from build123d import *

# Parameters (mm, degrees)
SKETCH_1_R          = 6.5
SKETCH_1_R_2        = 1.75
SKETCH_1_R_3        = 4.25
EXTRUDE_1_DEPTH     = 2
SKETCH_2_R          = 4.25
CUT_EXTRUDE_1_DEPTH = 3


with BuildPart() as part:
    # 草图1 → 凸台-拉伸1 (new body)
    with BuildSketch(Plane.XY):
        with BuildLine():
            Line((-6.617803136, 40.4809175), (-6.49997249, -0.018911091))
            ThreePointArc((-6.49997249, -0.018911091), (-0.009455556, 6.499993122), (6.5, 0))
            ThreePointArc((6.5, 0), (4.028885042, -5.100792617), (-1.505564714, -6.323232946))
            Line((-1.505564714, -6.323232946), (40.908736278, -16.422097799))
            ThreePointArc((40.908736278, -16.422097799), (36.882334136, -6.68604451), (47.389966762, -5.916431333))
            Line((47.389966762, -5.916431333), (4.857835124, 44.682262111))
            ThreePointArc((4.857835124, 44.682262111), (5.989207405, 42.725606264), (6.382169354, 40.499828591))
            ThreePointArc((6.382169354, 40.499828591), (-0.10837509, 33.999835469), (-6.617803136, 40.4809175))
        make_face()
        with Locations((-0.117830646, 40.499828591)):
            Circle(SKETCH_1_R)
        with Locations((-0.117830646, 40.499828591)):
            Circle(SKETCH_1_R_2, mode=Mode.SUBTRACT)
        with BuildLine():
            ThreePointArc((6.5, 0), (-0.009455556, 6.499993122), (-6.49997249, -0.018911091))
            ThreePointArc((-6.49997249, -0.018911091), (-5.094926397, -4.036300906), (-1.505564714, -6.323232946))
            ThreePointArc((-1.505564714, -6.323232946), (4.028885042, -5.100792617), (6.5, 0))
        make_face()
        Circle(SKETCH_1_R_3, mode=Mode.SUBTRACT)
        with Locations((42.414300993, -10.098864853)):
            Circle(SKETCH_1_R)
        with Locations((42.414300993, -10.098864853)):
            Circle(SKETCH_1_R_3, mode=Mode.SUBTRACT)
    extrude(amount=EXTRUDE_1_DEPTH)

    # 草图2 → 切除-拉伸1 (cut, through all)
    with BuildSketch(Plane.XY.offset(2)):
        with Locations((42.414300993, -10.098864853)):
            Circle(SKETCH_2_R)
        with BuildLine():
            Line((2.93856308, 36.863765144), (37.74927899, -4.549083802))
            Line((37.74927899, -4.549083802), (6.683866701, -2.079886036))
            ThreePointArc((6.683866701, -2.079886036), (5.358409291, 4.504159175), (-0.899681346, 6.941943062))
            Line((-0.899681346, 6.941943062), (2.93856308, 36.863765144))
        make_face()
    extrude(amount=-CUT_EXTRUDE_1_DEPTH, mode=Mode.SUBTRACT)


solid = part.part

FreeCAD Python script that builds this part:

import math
import FreeCAD as App
import Part
import Sketcher
Q = App.Units.Quantity

doc = App.newDocument("Part")
body = doc.addObject("PartDesign::Body", "Body")

# Sketch on XY plane
sketch1 = body.newObject("Sketcher::SketchObject", "Sketch")
sketch1.AttachmentSupport = (doc.getObject("XY_Plane"), [""])
sketch1.MapMode = "FlatFace"
sketch1.addGeometry([
    Part.ArcOfCircle(Part.Circle(App.Vector(-0.1, 40.5, 0), App.Vector(0, 0, 1), 6.5), math.radians(40), math.radians(180)),  # 0
    Part.LineSegment(App.Vector(-6.6, 40.5, 0), App.Vector(-6.5, 0, 0)),  # 1
    Part.ArcOfCircle(Part.Circle(App.Vector(0, 0, 0), App.Vector(0, 0, 1), 6.5), math.radians(-180), math.radians(-103)),  # 2
    Part.LineSegment(App.Vector(-1.5, -6.3, 0), App.Vector(40.9, -16.4, 0)),  # 3
    Part.ArcOfCircle(Part.Circle(App.Vector(42.4, -10.1, 0), App.Vector(0, 0, 1), 6.5), math.radians(-103), math.radians(40)),  # 4
    Part.LineSegment(App.Vector(47.4, -5.9, 0), App.Vector(4.9, 44.7, 0)),  # 5
    Part.Circle(App.Vector(0, 0, 0), App.Vector(0, 0, 1), 4.2),  # 6
    Part.Circle(App.Vector(42.4, -10.1, 0), App.Vector(0, 0, 1), 4.2),  # 7
    Part.Circle(App.Vector(-0.1, 40.5, 0), App.Vector(0, 0, 1), 1.8),  # 8
], False)
sketch1.addConstraint([
    Sketcher.Constraint("Tangent", 0, 2, 1, 1),
    Sketcher.Constraint("Tangent", 1, 2, 2, 1),
    Sketcher.Constraint("Tangent", 2, 2, 3, 1),
    Sketcher.Constraint("Tangent", 3, 2, 4, 1),
    Sketcher.Constraint("Tangent", 4, 2, 5, 1),
    Sketcher.Constraint("Tangent", 5, 2, 0, 1),
    Sketcher.Constraint("Coincident", 2, 3, -1, 1),
    Sketcher.Constraint("Coincident", 6, 3, -1, 1),
    Sketcher.Constraint("Coincident", 7, 3, 4, 3),
    Sketcher.Constraint("Coincident", 8, 3, 0, 3),
    Sketcher.Constraint("Equal", 0, 2),
    Sketcher.Constraint("Equal", 2, 4),
    Sketcher.Constraint("Equal", 6, 7),
    Sketcher.Constraint("Diameter", 6, Q("8.5 mm")),
    Sketcher.Constraint("Diameter", 8, Q("3.5 mm")),
    Sketcher.Constraint("Radius", 0, Q("6.5 mm")),
    Sketcher.Constraint("Distance", 1, Q("40.5 mm")),
    Sketcher.Constraint("Distance", 3, Q("43.6 mm")),
    Sketcher.Constraint("Distance", 5, Q("66.1 mm")),
    Sketcher.Constraint("DistanceX", -1, 1, 4, 3, Q("42.414301 mm")),
])
pad1 = body.newObject("PartDesign::Pad", "Pad")
pad1.Profile = sketch1
pad1.Length = 2

# Sketch on XY plane
sketch2 = body.newObject("Sketcher::SketchObject", "Sketch001")
sketch2.AttachmentSupport = (doc.getObject("XY_Plane"), [""])
sketch2.MapMode = "FlatFace"
sketch2.AttachmentOffset = App.Placement(App.Vector(0, 0, 2), App.Rotation())
sketch2.addGeometry([
    Part.Circle(App.Vector(42.4, -10.1, 0), App.Vector(0, 0, 1), 4.2),  # 0
    Part.LineSegment(App.Vector(37.7, -4.5, 0), App.Vector(2.9, 36.9, 0)),  # 1
    Part.LineSegment(App.Vector(2.9, 36.9, 0), App.Vector(-0.9, 6.9, 0)),  # 2
    Part.ArcOfCircle(Part.Circle(App.Vector(0, 0, 0), App.Vector(0, 0, 1), 7), math.radians(-17), math.radians(97)),  # 3
    Part.LineSegment(App.Vector(6.7, -2.1, 0), App.Vector(37.7, -4.5, 0)),  # 4
], False)
sketch2.addConstraint([
    Sketcher.Constraint("Coincident", 1, 2, 2, 1),
    Sketcher.Constraint("Coincident", 2, 2, 3, 2),
    Sketcher.Constraint("Coincident", 3, 1, 4, 1),
    Sketcher.Constraint("Coincident", 4, 2, 1, 1),
    Sketcher.Constraint("Coincident", 3, 3, -1, 1),
    Sketcher.Constraint("Radius", 3, Q("7 mm")),
    Sketcher.Constraint("Diameter", 0, Q("8.5 mm")),
    Sketcher.Constraint("Distance", 1, Q("54.1 mm")),
    Sketcher.Constraint("DistanceX", -1, 1, 0, 3, Q("42.414301 mm")),
    Sketcher.Constraint("Distance", 4, Q("31.163388 mm")),
    Sketcher.Constraint("DistanceX", 2, 2, -1, 1, Q("0.899681 mm")),
    Sketcher.Constraint("DistanceX", -1, 1, 4, 2, Q("37.749279 mm")),
    Sketcher.Constraint("DistanceY", 0, 3, 1, 2, Q("46.96263 mm")),
    Sketcher.Constraint("DistanceX", 2, 2, 3, 1, Q("7.583548 mm")),
    Sketcher.Constraint("DistanceY", 0, 3, 3, 1, Q("8.018979 mm")),
])
pocket1 = body.newObject("PartDesign::Pocket", "Pocket")
pocket1.Profile = sketch2
pocket1.Type = "ThroughAll"

doc.recompute()
